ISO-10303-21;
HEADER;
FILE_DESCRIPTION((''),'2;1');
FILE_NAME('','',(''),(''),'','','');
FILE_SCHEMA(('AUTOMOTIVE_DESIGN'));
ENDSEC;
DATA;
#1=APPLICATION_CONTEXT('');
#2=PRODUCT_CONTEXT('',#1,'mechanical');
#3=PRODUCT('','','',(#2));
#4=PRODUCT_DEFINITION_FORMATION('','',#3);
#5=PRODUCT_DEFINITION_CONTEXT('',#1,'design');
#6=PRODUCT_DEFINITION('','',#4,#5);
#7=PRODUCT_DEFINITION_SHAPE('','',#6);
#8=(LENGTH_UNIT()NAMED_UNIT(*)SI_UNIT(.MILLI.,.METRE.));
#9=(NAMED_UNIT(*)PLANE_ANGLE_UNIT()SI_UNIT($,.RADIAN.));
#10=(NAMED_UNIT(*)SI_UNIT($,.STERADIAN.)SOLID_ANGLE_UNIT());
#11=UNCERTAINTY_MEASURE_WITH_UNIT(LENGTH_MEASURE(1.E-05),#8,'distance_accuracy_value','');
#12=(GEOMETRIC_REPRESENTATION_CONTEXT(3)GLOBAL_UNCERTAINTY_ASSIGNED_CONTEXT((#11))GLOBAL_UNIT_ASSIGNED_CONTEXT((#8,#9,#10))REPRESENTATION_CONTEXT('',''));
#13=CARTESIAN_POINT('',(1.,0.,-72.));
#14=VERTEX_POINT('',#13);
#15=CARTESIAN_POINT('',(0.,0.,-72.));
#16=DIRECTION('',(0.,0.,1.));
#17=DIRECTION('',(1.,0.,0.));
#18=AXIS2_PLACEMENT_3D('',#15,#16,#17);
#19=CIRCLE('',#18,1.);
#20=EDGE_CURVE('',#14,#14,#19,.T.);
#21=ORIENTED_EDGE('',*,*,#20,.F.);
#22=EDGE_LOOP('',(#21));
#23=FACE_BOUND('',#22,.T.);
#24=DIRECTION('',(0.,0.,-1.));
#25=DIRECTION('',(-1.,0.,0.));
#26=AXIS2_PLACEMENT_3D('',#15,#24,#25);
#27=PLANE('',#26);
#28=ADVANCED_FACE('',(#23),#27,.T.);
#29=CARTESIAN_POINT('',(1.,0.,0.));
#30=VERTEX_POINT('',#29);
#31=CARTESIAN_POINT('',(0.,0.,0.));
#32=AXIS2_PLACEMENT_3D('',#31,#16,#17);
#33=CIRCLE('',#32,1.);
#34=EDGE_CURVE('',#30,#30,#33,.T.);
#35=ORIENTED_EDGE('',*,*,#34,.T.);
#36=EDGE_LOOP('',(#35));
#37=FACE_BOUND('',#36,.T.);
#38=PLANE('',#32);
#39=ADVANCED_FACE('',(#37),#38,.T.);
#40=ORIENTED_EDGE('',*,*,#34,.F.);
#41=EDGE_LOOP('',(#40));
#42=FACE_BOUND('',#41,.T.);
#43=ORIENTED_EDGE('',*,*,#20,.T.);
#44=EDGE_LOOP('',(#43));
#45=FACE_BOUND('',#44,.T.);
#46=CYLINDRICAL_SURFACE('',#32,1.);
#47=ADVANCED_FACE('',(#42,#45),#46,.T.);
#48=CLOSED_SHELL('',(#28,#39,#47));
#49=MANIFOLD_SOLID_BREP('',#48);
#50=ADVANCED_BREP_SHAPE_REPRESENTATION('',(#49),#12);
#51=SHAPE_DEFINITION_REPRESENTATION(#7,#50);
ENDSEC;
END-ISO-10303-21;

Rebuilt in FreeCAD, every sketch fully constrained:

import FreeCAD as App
import Part
import Sketcher
from FreeCAD import Vector
Q = App.Units.Quantity

doc = App.newDocument("Part")
body = doc.addObject("PartDesign::Body", "Body")

sketch1 = body.newObject("Sketcher::SketchObject", "Sketch")
sketch1.AttachmentSupport = (doc.getObject("XZ_Plane"), [""])
sketch1.MapMode = "FlatFace"
sketch1.addGeometry(Part.LineSegment(Vector(0, -72, 0), Vector(0, 0, 0)), False)
sketch1.addGeometry(Part.LineSegment(Vector(0, 0, 0), Vector(1, 0, 0)), False)
sketch1.addGeometry(Part.LineSegment(Vector(1, 0, 0), Vector(1, -72, 0)), False)
sketch1.addGeometry(Part.LineSegment(Vector(1, -72, 0), Vector(0, -72, 0)), False)
sketch1.addConstraint(Sketcher.Constraint("Coincident", 0, 2, 1, 1))
sketch1.addConstraint(Sketcher.Constraint("Coincident", 1, 2, 2, 1))
sketch1.addConstraint(Sketcher.Constraint("Coincident", 2, 2, 3, 1))
sketch1.addConstraint(Sketcher.Constraint("Coincident", 3, 2, 0, 1))
sketch1.addConstraint(Sketcher.Constraint("Vertical", 0))
sketch1.addConstraint(Sketcher.Constraint("Horizontal", 1))
sketch1.addConstraint(Sketcher.Constraint("Vertical", 2))
sketch1.addConstraint(Sketcher.Constraint("Horizontal", 3))
sketch1.addConstraint(Sketcher.Constraint("Coincident", 0, 2, -1, 1))
sketch1.addConstraint(Sketcher.Constraint("DistanceX", 1, 1, 1, 2, Q("1 mm")))
sketch1.addConstraint(Sketcher.Constraint("DistanceY", 0, 1, 0, 2, Q("72 mm")))
revolution = body.newObject("PartDesign::Revolution", "Revolution")
revolution.Profile = sketch1
revolution.ReferenceAxis = (sketch1, ["V_Axis"])
revolution.Angle = 360

doc.recompute()
